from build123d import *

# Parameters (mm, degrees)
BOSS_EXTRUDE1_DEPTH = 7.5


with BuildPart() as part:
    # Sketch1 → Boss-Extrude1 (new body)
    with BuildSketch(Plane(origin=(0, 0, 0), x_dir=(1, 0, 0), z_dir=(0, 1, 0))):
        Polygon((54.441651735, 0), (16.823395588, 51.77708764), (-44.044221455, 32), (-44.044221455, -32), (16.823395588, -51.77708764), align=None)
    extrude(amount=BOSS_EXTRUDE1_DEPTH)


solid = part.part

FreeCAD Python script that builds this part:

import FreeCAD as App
import Part
import Sketcher
from FreeCAD import Vector
Q = App.Units.Quantity


def add_polygon(sketch, points):
    """Adds a closed chain of lines whose ends are joined by coincident constraints."""
    first, n = sketch.GeometryCount, len(points)
    for a, b in zip(points, points[1:] + points[:1]):
        sketch.addGeometry(Part.LineSegment(App.Vector(*a, 0), App.Vector(*b, 0)), False)
    for i in range(n):
        sketch.addConstraint(Sketcher.Constraint("Coincident", first + i, 2, first + (i + 1) % n, 1))

doc = App.newDocument("Part")
body = doc.addObject("PartDesign::Body", "Body")

# Sketch on XZ plane
sketch1 = doc.addObject("Sketcher::SketchObject", "Sketch")
body.addObject(sketch1)
sketch1.AttachmentSupport = (doc.XZ_Plane, [""])
sketch1.MapMode = "FlatFace"
add_polygon(sketch1, [(54, 0), (17, -52), (-44, -32), (-44, 32), (17, 52)])  # lines 0-4
sketch1.addConstraint([
    Sketcher.Constraint("Vertical", 2),
    Sketcher.Constraint("Symmetric", 0, 2, 3, 2, -1),
    Sketcher.Constraint("PointOnObject", 4, 2, -1),
    Sketcher.Constraint("Equal", 0, 1),
    Sketcher.Constraint("Equal", 1, 3),
    Sketcher.Constraint("DistanceY", 2, 1, 2, 2, 64.0),
    Sketcher.Constraint("Angle", 0, Q("-126 deg")),
    Sketcher.Constraint("Angle", 1, Q("162 deg")),
    Sketcher.Constraint("DistanceX", 1, 2, -1, 1, 44.044221),
])
pad1 = doc.addObject("PartDesign::Pad", "Pad")
body.addObject(pad1)
pad1.Profile = sketch1
pad1.Length = 7.5
pad1.Reversed = True

doc.recompute()
